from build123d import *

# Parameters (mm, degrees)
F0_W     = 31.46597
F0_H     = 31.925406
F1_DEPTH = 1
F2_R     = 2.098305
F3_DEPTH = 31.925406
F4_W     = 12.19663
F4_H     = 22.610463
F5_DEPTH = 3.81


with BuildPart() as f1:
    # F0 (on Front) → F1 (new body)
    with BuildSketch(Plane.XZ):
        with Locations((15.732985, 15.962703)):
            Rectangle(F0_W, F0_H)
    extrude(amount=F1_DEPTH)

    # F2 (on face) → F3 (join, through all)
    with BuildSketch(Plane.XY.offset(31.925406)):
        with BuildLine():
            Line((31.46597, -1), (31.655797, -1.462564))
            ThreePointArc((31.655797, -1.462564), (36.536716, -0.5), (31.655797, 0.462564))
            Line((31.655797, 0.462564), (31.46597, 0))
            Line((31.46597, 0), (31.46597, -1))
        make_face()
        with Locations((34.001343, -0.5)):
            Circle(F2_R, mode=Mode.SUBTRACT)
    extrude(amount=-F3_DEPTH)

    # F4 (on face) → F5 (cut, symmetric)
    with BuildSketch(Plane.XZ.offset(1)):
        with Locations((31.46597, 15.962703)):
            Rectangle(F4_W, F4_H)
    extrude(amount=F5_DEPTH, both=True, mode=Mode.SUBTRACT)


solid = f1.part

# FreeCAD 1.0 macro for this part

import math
import FreeCAD as App
import Part
import Sketcher
from FreeCAD import Vector
Q = App.Units.Quantity


def add_polygon(sketch, points):
    """Adds a closed chain of lines whose ends are joined by coincident constraints."""
    first, n = sketch.GeometryCount, len(points)
    for a, b in zip(points, points[1:] + points[:1]):
        sketch.addGeometry(Part.LineSegment(App.Vector(*a, 0), App.Vector(*b, 0)), False)
    for i in range(n):
        sketch.addConstraint(Sketcher.Constraint("Coincident", first + i, 2, first + (i + 1) % n, 1))

doc = App.newDocument("Part")
body = doc.addObject("PartDesign::Body", "Body")

# Sketch on XZ plane
sketch1 = body.newObject("Sketcher::SketchObject", "Sketch")
sketch1.AttachmentSupport = (doc.getObject("XZ_Plane"), [""])
sketch1.MapMode = "FlatFace"
add_polygon(sketch1, [(0, 31.925406), (0, 0), (31.46597, 0), (31.46597, 31.925406)])  # lines 0-3
sketch1.addConstraint([
    Sketcher.Constraint("Vertical", 0),
    Sketcher.Constraint("Horizontal", 1),
    Sketcher.Constraint("Vertical", 2),
    Sketcher.Constraint("Horizontal", 3),
    Sketcher.Constraint("Coincident", 0, 2, -1, 1),
    Sketcher.Constraint("DistanceX", 1, 1, 1, 2, Q("31.46597 mm")),
    Sketcher.Constraint("DistanceY", 0, 2, 0, 1, Q("31.925406 mm")),
])
pad1 = body.newObject("PartDesign::Pad", "Pad")
pad1.Profile = sketch1
pad1.Length = 1

# Sketch on XY plane
sketch2 = body.newObject("Sketcher::SketchObject", "Sketch001")
sketch2.AttachmentSupport = (doc.getObject("XY_Plane"), [""])
sketch2.MapMode = "FlatFace"
sketch2.AttachmentOffset = App.Placement(Vector(0, 0, 31.925406), App.Rotation())
sketch2.addGeometry([
    Part.LineSegment(Vector(31.46597, -1, 0), Vector(31.655797, -1.462564, 0)),  # 0
    Part.ArcOfCircle(Part.Circle(Vector(34.001343, -0.5, 0), Vector(0, 0, 1), 2.535373), math.radians(-157.687759), math.radians(157.687759)),  # 1
    Part.LineSegment(Vector(31.655797, 0.462564, 0), Vector(31.46597, 0, 0)),  # 2
    Part.LineSegment(Vector(31.46597, 0, 0), Vector(31.46597, -1, 0)),  # 3
    Part.Circle(Vector(34.001343, -0.5, 0), Vector(0, 0, 1), 2.098305),  # 4
], False)
sketch2.addConstraint([
    Sketcher.Constraint("Tangent", 0, 2, 1, 1),
    Sketcher.Constraint("Tangent", 1, 2, 2, 1),
    Sketcher.Constraint("Coincident", 2, 2, 3, 1),
    Sketcher.Constraint("Coincident", 3, 2, 0, 1),
    Sketcher.Constraint("Vertical", 3),
    Sketcher.Constraint("Coincident", 4, 3, 1, 3),
    Sketcher.Constraint("PointOnObject", 2, 2, -1),
    Sketcher.Constraint("Vertical", 0, 2, 1, 2),
    Sketcher.Constraint("DistanceY", 3, 2, 3, 1, Q("1 mm")),
    Sketcher.Constraint("Distance", 0, Q("0.5 mm")),
    Sketcher.Constraint("Diameter", 4, Q("4.19661 mm")),
    Sketcher.Constraint("Radius", 1, Q("2.535373 mm")),
    Sketcher.Constraint("DistanceX", -1, 1, 2, 2, Q("31.46597 mm")),
])
pad2 = body.newObject("PartDesign::Pad", "Pad001")
pad2.Profile = sketch2
pad2.Length = 31.925406
pad2.Reversed = True

# Sketch on XZ plane
sketch3 = body.newObject("Sketcher::SketchObject", "Sketch002")
sketch3.AttachmentSupport = (doc.getObject("XZ_Plane"), [""])
sketch3.MapMode = "FlatFace"
sketch3.AttachmentOffset = App.Placement(Vector(0, 0, 1), App.Rotation())
add_polygon(sketch3, [(25.367655, 27.267934), (25.367655, 4.657471), (37.564285, 4.657471), (37.564285, 27.267934)])  # lines 0-3
sketch3.addConstraint([
    Sketcher.Constraint("Vertical", 0),
    Sketcher.Constraint("Horizontal", 1),
    Sketcher.Constraint("Vertical", 2),
    Sketcher.Constraint("Horizontal", 3),
    Sketcher.Constraint("DistanceX", 1, 1, 1, 2, Q("12.19663 mm")),
    Sketcher.Constraint("DistanceY", 0, 2, 0, 1, Q("22.610463 mm")),
    Sketcher.Constraint("DistanceY", -1, 1, 0, 2, Q("4.657471 mm")),
    Sketcher.Constraint("DistanceX", -1, 1, 0, 2, Q("25.367655 mm")),
])
pocket1 = body.newObject("PartDesign::Pocket", "Pocket")
pocket1.Profile = sketch3
pocket1.Length = 7.62
pocket1.Midplane = True

doc.recompute()
